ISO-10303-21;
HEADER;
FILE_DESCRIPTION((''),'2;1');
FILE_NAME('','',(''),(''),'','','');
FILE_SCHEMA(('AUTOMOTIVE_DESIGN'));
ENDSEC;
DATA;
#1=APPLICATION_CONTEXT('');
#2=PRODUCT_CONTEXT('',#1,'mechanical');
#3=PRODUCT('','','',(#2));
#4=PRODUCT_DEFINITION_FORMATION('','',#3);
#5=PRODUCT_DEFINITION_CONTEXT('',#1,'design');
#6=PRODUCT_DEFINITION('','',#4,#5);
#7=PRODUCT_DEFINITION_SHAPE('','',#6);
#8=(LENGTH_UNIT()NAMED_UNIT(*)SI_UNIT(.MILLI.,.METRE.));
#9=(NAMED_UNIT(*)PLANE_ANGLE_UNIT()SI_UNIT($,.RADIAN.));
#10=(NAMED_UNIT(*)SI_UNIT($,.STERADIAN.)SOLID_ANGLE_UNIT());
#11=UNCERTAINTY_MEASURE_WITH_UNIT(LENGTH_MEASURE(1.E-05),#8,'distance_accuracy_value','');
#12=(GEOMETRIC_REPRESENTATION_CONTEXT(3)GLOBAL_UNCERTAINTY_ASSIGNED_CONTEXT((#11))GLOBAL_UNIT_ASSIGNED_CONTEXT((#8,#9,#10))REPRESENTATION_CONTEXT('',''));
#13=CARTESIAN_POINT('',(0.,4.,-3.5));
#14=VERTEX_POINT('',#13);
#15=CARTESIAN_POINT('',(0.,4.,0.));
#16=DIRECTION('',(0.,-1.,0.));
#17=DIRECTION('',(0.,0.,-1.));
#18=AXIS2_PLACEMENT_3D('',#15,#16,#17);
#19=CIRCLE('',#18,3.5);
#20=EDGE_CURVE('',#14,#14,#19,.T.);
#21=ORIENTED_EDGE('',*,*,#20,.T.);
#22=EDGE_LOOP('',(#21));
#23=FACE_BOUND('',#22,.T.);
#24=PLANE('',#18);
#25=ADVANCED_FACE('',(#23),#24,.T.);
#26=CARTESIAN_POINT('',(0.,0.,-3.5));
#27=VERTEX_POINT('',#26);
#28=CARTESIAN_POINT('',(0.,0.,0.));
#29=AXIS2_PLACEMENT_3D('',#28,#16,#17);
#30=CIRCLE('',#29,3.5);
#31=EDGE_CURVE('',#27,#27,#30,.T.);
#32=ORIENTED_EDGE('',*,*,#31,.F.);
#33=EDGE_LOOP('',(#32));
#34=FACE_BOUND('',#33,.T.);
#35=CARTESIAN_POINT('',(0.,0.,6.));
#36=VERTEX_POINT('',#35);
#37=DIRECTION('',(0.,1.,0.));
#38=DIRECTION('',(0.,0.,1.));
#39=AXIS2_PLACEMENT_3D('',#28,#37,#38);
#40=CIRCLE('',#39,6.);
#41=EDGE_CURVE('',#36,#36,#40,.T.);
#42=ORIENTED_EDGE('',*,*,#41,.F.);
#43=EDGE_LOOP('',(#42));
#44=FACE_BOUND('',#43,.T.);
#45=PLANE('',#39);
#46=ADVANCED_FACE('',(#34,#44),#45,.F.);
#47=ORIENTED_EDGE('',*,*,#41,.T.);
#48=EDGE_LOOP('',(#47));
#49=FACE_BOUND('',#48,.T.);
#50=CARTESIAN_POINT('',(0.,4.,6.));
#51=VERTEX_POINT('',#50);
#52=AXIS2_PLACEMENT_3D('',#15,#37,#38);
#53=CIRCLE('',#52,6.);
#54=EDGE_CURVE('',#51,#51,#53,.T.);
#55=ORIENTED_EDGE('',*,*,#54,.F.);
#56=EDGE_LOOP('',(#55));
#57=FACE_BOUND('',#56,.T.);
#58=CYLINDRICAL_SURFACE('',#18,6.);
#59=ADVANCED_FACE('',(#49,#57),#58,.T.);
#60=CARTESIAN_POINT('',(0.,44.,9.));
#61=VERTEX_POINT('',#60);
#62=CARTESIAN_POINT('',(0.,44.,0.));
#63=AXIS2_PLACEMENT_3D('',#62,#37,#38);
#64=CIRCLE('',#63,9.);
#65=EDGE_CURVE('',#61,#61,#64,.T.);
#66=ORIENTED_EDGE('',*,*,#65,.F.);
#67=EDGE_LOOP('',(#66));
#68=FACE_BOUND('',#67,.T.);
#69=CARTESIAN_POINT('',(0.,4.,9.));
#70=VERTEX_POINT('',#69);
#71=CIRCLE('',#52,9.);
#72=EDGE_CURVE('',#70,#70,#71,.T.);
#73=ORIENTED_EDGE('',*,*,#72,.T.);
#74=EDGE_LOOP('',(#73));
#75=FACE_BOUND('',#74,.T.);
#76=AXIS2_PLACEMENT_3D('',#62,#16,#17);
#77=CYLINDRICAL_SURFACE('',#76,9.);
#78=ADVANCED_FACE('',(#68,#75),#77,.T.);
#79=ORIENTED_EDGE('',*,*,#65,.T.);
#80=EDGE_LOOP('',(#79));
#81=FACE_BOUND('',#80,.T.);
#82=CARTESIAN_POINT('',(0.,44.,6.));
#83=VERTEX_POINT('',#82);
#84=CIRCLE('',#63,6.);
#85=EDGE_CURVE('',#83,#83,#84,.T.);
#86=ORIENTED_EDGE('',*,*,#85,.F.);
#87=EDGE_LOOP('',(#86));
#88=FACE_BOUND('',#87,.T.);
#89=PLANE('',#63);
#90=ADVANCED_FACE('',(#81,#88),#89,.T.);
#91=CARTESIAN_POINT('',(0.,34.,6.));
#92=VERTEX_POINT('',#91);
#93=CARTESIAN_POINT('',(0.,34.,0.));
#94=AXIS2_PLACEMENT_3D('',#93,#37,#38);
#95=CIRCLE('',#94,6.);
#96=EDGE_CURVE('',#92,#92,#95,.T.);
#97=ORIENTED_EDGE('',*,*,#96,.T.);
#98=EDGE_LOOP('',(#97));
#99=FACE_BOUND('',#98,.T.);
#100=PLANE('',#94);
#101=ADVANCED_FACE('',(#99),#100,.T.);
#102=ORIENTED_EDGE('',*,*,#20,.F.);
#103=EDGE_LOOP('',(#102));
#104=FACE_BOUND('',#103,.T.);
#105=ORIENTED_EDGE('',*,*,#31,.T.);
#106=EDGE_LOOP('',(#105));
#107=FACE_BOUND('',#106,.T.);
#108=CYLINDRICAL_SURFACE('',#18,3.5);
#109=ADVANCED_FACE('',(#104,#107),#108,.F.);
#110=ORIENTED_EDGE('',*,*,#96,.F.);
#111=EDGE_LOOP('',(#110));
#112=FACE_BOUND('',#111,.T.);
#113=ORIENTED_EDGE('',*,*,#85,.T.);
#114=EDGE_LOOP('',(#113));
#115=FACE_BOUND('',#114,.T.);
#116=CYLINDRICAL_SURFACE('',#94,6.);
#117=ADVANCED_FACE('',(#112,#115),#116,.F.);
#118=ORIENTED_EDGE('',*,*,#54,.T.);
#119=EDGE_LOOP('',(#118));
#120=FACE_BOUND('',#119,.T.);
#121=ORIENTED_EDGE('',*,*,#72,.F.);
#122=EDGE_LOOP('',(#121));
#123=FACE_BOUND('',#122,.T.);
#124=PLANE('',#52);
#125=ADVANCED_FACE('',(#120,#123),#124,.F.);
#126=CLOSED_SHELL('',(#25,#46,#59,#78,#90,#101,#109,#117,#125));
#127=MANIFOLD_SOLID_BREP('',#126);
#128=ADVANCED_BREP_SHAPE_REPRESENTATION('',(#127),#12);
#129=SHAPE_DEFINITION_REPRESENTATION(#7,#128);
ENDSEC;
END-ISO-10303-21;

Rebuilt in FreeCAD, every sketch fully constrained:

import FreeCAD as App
import Part
import Sketcher
Q = App.Units.Quantity

doc = App.newDocument("Part")
body = doc.addObject("PartDesign::Body", "Body")

sketch1 = doc.addObject("Sketcher::SketchObject", "Sketch")
body.addObject(sketch1)
sketch1.AttachmentSupport = (doc.XZ_Plane, [""])
sketch1.MapMode = "FlatFace"
sketch1.addGeometry(Part.Circle(App.Vector(0, 0, 0), App.Vector(0, 0, 1), 6), False)
sketch1.addConstraint([
    Sketcher.Constraint("Coincident", 0, 3, -1, 1),
    Sketcher.Constraint("Diameter", 0, Q("12 mm")),
])
pad1 = doc.addObject("PartDesign::Pad", "Pad")
body.addObject(pad1)
pad1.Profile = sketch1
pad1.Length = 4
pad1.Reversed = True

sketch2 = doc.addObject("Sketcher::SketchObject", "Sketch001")
body.addObject(sketch2)
sketch2.AttachmentSupport = (doc.XZ_Plane, [""])
sketch2.MapMode = "FlatFace"
sketch2.AttachmentOffset = App.Placement(App.Vector(0, 0, -4), App.Rotation())
sketch2.addGeometry(Part.Circle(App.Vector(0, 0, 0), App.Vector(0, 0, 1), 9), False)
sketch2.addConstraint([
    Sketcher.Constraint("Coincident", 0, 3, -1, 1),
    Sketcher.Constraint("Diameter", 0, Q("18 mm")),
])
pad2 = doc.addObject("PartDesign::Pad", "Pad001")
body.addObject(pad2)
pad2.Profile = sketch2
pad2.Length = 40
pad2.Reversed = True

sketch3 = doc.addObject("Sketcher::SketchObject", "Sketch002")
body.addObject(sketch3)
sketch3.AttachmentSupport = (doc.XZ_Plane, [""])
sketch3.MapMode = "FlatFace"
sketch3.addGeometry(Part.Circle(App.Vector(0, 0, 0), App.Vector(0, 0, 1), 3.5), False)
sketch3.addConstraint([
    Sketcher.Constraint("Coincident", 0, 3, -1, 1),
    Sketcher.Constraint("Diameter", 0, Q("7 mm")),
])
pocket1 = doc.addObject("PartDesign::Pocket", "Pocket")
body.addObject(pocket1)
pocket1.Profile = sketch3
pocket1.Length = 4

sketch4 = doc.addObject("Sketcher::SketchObject", "Sketch003")
body.addObject(sketch4)
sketch4.AttachmentSupport = (doc.XZ_Plane, [""])
sketch4.MapMode = "FlatFace"
sketch4.AttachmentOffset = App.Placement(App.Vector(0, 0, -44), App.Rotation())
sketch4.addGeometry(Part.Circle(App.Vector(0, 0, 0), App.Vector(0, 0, 1), 6), False)
sketch4.addConstraint([
    Sketcher.Constraint("Coincident", 0, 3, -1, 1),
    Sketcher.Constraint("Diameter", 0, Q("12 mm")),
])
pocket2 = doc.addObject("PartDesign::Pocket", "Pocket001")
body.addObject(pocket2)
pocket2.Profile = sketch4
pocket2.Length = 10
pocket2.Reversed = True

doc.recompute()
